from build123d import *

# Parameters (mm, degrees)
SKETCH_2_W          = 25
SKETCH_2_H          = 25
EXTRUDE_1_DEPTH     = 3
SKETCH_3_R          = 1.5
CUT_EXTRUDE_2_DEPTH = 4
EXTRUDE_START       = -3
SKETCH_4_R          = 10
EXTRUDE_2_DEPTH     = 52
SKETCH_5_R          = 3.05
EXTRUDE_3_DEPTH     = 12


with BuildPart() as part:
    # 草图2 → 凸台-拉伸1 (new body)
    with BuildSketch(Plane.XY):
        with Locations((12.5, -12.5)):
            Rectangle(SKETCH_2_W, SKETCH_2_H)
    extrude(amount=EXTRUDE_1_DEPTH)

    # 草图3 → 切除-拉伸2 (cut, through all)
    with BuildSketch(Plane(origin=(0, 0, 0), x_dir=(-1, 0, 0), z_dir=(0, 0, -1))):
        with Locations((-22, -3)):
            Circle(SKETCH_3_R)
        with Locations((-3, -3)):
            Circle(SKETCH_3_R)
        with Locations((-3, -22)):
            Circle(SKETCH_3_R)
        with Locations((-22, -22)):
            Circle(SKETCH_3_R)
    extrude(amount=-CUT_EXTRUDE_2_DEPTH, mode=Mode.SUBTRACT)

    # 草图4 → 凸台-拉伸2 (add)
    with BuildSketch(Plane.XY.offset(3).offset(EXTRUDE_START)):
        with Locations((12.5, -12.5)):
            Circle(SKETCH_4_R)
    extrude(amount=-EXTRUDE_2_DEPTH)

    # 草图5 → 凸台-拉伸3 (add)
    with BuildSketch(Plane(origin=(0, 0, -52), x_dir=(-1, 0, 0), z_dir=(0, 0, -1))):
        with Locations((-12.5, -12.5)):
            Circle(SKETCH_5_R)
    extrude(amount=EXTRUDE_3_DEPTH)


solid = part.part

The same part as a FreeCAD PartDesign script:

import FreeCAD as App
import Part
import Sketcher

V = App.Vector
Q = App.Units.Quantity

doc = App.newDocument("Part")
body = doc.addObject("PartDesign::Body", "Body")

# Sketch on XY plane
sketch1 = body.newObject("Sketcher::SketchObject", "Sketch")
sketch1.AttachmentSupport = (doc.getObject("XY_Plane"), [""])
sketch1.MapMode = "FlatFace"
sketch1.addGeometry([
    Part.LineSegment(V(0, 0, 0), V(0, -25, 0)),
    Part.LineSegment(V(0, -25, 0), V(25, -25, 0)),
    Part.LineSegment(V(25, -25, 0), V(25, 0, 0)),
    Part.LineSegment(V(25, 0, 0), V(0, 0, 0)),
], False)
sketch1.addConstraint([
    Sketcher.Constraint("Coincident", 0, 2, 1, 1),
    Sketcher.Constraint("Coincident", 1, 2, 2, 1),
    Sketcher.Constraint("Coincident", 2, 2, 3, 1),
    Sketcher.Constraint("Coincident", 3, 2, 0, 1),
    Sketcher.Constraint("Vertical", 0),
    Sketcher.Constraint("Horizontal", 1),
    Sketcher.Constraint("Vertical", 2),
    Sketcher.Constraint("Horizontal", 3),
    Sketcher.Constraint("Coincident", 3, 2, -1, 1),
    Sketcher.Constraint("Equal", 3, 0),
    Sketcher.Constraint("DistanceX", 1, 1, 1, 2, Q("25 mm")),
])
pad1 = body.newObject("PartDesign::Pad", "Pad")
pad1.Profile = sketch1
pad1.Length = 3

# Sketch on XY plane
sketch2 = body.newObject("Sketcher::SketchObject", "Sketch001")
sketch2.AttachmentSupport = (doc.getObject("XY_Plane"), [""])
sketch2.MapMode = "FlatFace"
sketch2.addGeometry([
    Part.Circle(V(22, -3, 0), V(0, 0, 1), 1.5),
    Part.Circle(V(3, -3, 0), V(0, 0, 1), 1.5),
    Part.Circle(V(3, -22, 0), V(0, 0, 1), 1.5),
    Part.Circle(V(22, -22, 0), V(0, 0, 1), 1.5),
], False)
sketch2.addConstraint([
    Sketcher.Constraint("Equal", 0, 1),
    Sketcher.Constraint("Equal", 1, 2),
    Sketcher.Constraint("Equal", 2, 3),
    Sketcher.Constraint("Horizontal", 0, 3, 1, 3),
    Sketcher.Constraint("Horizontal", 2, 3, 3, 3),
    Sketcher.Constraint("Vertical", 1, 3, 2, 3),
    Sketcher.Constraint("Vertical", 0, 3, 3, 3),
    Sketcher.Constraint("Diameter", 0, Q("3 mm")),
    Sketcher.Constraint("DistanceX", -1, 1, 0, 3, Q("22 mm")),
    Sketcher.Constraint("DistanceY", 0, 3, -1, 1, Q("3 mm")),
    Sketcher.Constraint("DistanceX", -1, 1, 1, 3, Q("3 mm")),
    Sketcher.Constraint("DistanceY", 2, 3, -1, 1, Q("22 mm")),
])
pocket1 = body.newObject("PartDesign::Pocket", "Pocket")
pocket1.Profile = sketch2
pocket1.Type = "ThroughAll"
pocket1.Reversed = True

# Sketch on XY plane
sketch3 = body.newObject("Sketcher::SketchObject", "Sketch002")
sketch3.AttachmentSupport = (doc.getObject("XY_Plane"), [""])
sketch3.MapMode = "FlatFace"
sketch3.addGeometry(Part.Circle(V(12, -12, 0), V(0, 0, 1), 10), False)
sketch3.addConstraint([
    Sketcher.Constraint("Diameter", 0, Q("20 mm")),
    Sketcher.Constraint("DistanceX", -1, 1, 0, 3, Q("12.5 mm")),
    Sketcher.Constraint("DistanceY", 0, 3, -1, 1, Q("12.5 mm")),
])
pad2 = body.newObject("PartDesign::Pad", "Pad001")
pad2.Profile = sketch3
pad2.Length = 52
pad2.Reversed = True

# Sketch on XY plane
sketch4 = body.newObject("Sketcher::SketchObject", "Sketch003")
sketch4.AttachmentSupport = (doc.getObject("XY_Plane"), [""])
sketch4.MapMode = "FlatFace"
sketch4.AttachmentOffset = App.Placement(V(0, 0, -52), App.Rotation())
sketch4.addGeometry(Part.Circle(V(12.5, -12.5, 0), V(0, 0, 1), 3), False)
sketch4.addConstraint([
    Sketcher.Constraint("Diameter", 0, Q("6.1 mm")),
    Sketcher.Constraint("DistanceX", -1, 1, 0, 3, Q("12.5 mm")),
    Sketcher.Constraint("DistanceY", 0, 3, -1, 1, Q("12.5 mm")),
])
pad3 = body.newObject("PartDesign::Pad", "Pad002")
pad3.Profile = sketch4
pad3.Length = 12
pad3.Reversed = True

doc.recompute()
